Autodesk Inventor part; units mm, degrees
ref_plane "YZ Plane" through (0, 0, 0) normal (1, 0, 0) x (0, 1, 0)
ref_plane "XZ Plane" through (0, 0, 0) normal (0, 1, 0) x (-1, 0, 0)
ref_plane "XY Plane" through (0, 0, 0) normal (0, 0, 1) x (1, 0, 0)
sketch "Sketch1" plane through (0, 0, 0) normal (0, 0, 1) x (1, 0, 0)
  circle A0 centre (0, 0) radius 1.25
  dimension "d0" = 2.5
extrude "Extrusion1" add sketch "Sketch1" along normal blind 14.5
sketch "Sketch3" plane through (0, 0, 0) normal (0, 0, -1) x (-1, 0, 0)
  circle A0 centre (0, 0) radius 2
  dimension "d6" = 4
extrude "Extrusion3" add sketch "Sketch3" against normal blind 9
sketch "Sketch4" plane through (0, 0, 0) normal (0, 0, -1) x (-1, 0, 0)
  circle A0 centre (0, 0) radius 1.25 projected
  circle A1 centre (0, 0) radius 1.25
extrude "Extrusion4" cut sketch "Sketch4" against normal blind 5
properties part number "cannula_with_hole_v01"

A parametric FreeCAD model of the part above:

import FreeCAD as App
import Part
import Sketcher

V = App.Vector
Q = App.Units.Quantity

doc = App.newDocument("Part")
body = doc.addObject("PartDesign::Body", "Body")

sketch1 = body.newObject("Sketcher::SketchObject", "Sketch")
sketch1.AttachmentSupport = (doc.getObject("XY_Plane"), [""])
sketch1.MapMode = "FlatFace"
sketch1.addGeometry(Part.Circle(V(0, 0, 0), V(0, 0, 1), 1.2), False)
sketch1.addConstraint([
    Sketcher.Constraint("Coincident", 0, 3, -1, 1),
    Sketcher.Constraint("Diameter", 0, Q("2.5 mm")),
])
pad1 = body.newObject("PartDesign::Pad", "Pad")
pad1.Profile = sketch1
pad1.Length = 14.5

sketch2 = body.newObject("Sketcher::SketchObject", "Sketch001")
sketch2.AttachmentSupport = (doc.getObject("XY_Plane"), [""])
sketch2.MapMode = "FlatFace"
sketch2.addGeometry(Part.Circle(V(0, 0, 0), V(0, 0, 1), 2), False)
sketch2.addConstraint([
    Sketcher.Constraint("Coincident", 0, 3, -1, 1),
    Sketcher.Constraint("Diameter", 0, Q("4 mm")),
])
pad2 = body.newObject("PartDesign::Pad", "Pad001")
pad2.Profile = sketch2
pad2.Length = 9

sketch3 = body.newObject("Sketcher::SketchObject", "Sketch002")
sketch3.AttachmentSupport = (doc.getObject("XY_Plane"), [""])
sketch3.MapMode = "FlatFace"
sketch3.addGeometry(Part.Circle(V(0, 0, 0), V(0, 0, 1), 1.2), False)
sketch3.addConstraint([
    Sketcher.Constraint("Coincident", 0, 3, -1, 1),
    Sketcher.Constraint("Diameter", 0, Q("2.5 mm")),
])
pocket1 = body.newObject("PartDesign::Pocket", "Pocket")
pocket1.Profile = sketch3
pocket1.Length = 5
pocket1.Reversed = True

doc.recompute()
